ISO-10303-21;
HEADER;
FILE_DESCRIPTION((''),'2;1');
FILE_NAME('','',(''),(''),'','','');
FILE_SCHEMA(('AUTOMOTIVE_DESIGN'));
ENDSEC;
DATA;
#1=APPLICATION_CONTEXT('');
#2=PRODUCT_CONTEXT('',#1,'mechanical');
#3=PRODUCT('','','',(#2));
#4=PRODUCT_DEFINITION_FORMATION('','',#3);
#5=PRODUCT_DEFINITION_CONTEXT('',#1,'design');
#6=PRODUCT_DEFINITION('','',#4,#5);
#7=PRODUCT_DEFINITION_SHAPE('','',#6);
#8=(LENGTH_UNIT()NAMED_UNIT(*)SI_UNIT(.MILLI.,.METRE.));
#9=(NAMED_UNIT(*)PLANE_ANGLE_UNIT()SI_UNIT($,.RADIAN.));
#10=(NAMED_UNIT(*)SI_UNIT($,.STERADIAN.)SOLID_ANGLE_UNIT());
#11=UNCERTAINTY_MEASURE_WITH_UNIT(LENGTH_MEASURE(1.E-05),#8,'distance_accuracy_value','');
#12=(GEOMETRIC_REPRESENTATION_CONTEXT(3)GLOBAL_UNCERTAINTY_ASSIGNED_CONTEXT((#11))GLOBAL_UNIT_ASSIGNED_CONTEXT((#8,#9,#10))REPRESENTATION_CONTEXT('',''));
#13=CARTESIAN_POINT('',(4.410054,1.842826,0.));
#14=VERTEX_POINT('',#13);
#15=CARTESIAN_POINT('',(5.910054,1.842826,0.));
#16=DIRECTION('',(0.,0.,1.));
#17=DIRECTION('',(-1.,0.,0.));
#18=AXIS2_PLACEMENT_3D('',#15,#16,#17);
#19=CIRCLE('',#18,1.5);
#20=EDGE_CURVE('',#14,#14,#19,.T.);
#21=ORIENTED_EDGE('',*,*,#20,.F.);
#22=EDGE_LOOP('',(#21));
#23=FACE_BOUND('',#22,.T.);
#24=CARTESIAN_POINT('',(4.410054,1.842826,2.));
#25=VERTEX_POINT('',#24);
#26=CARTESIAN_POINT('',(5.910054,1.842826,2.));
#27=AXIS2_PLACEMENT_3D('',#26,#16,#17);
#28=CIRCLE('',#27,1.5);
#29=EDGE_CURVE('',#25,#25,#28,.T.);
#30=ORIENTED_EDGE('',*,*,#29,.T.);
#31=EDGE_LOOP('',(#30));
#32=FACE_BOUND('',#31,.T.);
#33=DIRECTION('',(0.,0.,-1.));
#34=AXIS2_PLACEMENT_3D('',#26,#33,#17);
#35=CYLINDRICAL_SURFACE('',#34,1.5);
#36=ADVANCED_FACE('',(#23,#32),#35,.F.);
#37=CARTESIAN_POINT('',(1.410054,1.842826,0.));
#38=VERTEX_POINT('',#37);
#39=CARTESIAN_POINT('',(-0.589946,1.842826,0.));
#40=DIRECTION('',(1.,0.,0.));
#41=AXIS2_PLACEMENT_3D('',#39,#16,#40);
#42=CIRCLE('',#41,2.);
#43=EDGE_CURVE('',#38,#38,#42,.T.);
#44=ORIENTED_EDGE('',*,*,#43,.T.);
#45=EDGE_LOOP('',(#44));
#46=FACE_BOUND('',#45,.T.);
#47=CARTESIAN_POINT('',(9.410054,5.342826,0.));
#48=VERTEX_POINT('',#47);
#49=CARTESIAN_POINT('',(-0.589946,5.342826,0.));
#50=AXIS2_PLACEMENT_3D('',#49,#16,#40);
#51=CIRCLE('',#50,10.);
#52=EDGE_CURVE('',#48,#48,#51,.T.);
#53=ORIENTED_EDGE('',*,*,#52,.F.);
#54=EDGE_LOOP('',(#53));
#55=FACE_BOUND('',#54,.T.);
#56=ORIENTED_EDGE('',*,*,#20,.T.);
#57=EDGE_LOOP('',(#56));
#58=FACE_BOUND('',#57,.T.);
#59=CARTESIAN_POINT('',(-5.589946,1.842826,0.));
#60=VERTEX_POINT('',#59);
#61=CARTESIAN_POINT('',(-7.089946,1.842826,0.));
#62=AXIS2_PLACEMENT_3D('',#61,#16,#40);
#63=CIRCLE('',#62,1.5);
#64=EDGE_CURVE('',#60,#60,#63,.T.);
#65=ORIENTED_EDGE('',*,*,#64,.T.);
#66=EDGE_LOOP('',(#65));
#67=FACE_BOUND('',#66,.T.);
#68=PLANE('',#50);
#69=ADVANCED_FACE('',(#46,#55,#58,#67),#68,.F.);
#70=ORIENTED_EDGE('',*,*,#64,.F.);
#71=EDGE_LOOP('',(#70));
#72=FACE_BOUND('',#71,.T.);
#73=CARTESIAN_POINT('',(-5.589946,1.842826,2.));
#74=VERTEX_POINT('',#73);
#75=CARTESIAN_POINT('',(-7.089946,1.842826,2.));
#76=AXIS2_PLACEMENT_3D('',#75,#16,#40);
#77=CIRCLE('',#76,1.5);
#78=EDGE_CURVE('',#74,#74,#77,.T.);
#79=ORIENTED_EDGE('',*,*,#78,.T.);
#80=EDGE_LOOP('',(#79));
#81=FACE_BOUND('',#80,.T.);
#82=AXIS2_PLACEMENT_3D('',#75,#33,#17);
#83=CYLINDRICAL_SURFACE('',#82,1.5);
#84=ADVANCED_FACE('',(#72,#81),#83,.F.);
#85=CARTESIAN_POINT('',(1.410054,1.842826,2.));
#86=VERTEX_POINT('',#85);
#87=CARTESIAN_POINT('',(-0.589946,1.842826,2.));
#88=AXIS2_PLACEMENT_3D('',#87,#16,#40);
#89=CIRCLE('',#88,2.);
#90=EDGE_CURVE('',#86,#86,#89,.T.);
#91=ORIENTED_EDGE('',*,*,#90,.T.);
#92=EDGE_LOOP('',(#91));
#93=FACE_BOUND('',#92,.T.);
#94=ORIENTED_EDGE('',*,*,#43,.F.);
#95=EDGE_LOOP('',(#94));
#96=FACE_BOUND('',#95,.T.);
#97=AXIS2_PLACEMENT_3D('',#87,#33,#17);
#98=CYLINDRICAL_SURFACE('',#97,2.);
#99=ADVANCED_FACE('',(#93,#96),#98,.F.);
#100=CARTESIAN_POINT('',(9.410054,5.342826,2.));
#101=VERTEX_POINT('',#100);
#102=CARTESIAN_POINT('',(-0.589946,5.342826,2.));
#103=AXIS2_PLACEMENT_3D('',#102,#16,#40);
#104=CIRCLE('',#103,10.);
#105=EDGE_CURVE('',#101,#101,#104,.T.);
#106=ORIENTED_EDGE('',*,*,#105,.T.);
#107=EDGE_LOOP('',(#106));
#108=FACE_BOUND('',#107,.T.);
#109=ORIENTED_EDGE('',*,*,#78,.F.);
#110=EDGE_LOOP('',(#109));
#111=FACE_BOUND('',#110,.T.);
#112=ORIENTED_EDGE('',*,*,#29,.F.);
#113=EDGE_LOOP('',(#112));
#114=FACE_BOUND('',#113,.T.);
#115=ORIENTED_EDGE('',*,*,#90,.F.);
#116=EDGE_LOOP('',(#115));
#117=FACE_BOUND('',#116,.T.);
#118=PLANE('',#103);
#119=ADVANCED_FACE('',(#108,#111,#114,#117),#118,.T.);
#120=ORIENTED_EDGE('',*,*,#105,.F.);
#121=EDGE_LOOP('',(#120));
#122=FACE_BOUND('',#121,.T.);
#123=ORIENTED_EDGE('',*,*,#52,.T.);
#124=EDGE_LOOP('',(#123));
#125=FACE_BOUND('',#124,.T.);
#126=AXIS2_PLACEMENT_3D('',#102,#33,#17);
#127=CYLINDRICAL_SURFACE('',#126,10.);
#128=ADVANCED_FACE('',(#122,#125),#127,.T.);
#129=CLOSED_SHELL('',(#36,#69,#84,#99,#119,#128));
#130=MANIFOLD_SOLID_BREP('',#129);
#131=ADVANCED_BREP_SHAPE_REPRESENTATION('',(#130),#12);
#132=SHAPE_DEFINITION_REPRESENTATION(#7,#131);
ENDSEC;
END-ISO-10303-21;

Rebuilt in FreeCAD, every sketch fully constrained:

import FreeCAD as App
import Part
import Sketcher

V = App.Vector

doc = App.newDocument("Part")
body = doc.addObject("PartDesign::Body", "Body")

sketch1 = doc.addObject("Sketcher::SketchObject", "Sketch")
body.addObject(sketch1)
sketch1.AttachmentSupport = (doc.XY_Plane, [""])
sketch1.MapMode = "FlatFace"
sketch1.addGeometry(Part.Circle(V(-0.589946, 5.342826, 0), V(0, 0, 1), 10), False)
sketch1.addGeometry(Part.Circle(V(-7.089946, 1.842826, 0), V(0, 0, 1), 1.5), False)
sketch1.addGeometry(Part.Circle(V(-0.589946, 1.842826, 0), V(0, 0, 1), 2), False)
sketch1.addGeometry(Part.Circle(V(5.910054, 1.842826, 0), V(0, 0, 1), 1.5), False)
sketch1.addConstraint(Sketcher.Constraint("Equal", 1, 3))
sketch1.addConstraint(Sketcher.Constraint("Horizontal", 1, 3, 2, 3))
sketch1.addConstraint(Sketcher.Constraint("Horizontal", 2, 3, 3, 3))
sketch1.addConstraint(Sketcher.Constraint("Vertical", 0, 3, 2, 3))
sketch1.addConstraint(Sketcher.Constraint("Diameter", 0, 20.0))
sketch1.addConstraint(Sketcher.Constraint("Diameter", 1, 3.0))
sketch1.addConstraint(Sketcher.Constraint("Diameter", 2, 4.0))
sketch1.addConstraint(Sketcher.Constraint("DistanceX", 1, 3, 3, 3, 13.0))
sketch1.addConstraint(Sketcher.Constraint("DistanceX", 1, 3, 0, 3, 6.5))
sketch1.addConstraint(Sketcher.Constraint("DistanceY", 1, 3, 0, 3, 3.5))
sketch1.addConstraint(Sketcher.Constraint("DistanceX", 0, 3, -1, 1, 0.589946))
sketch1.addConstraint(Sketcher.Constraint("DistanceY", -1, 1, 0, 3, 5.342826))
pad1 = doc.addObject("PartDesign::Pad", "Pad")
body.addObject(pad1)
pad1.Profile = sketch1
pad1.Length = 2

doc.recompute()
